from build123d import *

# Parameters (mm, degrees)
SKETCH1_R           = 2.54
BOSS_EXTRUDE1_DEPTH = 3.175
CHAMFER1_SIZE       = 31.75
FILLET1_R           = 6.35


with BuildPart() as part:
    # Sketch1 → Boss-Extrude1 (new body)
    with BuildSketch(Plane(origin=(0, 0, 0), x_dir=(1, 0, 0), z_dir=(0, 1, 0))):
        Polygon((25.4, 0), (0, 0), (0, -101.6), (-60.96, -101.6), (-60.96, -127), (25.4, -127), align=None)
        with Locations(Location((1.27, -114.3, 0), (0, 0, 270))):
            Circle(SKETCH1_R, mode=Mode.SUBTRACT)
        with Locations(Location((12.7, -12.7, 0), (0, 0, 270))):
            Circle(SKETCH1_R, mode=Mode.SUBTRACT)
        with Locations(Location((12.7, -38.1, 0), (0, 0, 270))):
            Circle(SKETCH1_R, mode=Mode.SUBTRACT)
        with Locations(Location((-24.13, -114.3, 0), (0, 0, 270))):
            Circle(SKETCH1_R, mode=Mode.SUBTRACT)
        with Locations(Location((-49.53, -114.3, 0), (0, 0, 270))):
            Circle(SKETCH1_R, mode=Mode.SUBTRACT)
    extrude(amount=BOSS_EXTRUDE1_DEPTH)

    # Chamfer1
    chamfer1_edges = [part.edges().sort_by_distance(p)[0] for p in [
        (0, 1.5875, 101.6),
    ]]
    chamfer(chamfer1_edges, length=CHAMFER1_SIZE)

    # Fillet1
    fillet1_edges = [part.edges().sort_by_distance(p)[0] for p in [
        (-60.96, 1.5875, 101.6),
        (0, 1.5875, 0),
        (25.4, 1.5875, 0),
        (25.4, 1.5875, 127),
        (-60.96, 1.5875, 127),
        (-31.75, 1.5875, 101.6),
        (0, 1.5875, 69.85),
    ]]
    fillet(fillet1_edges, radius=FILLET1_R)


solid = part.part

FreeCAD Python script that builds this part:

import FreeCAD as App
import Part
import Sketcher
Q = App.Units.Quantity


def edges_at(feature, points):
    """Names of the edges that pass closest to the given points."""
    edges = feature.Shape.Edges
    near = lambda p: min(range(len(edges)), key=lambda i: edges[i].distToShape(Part.Vertex(*p))[0])
    return sorted({f"Edge{near(p) + 1}" for p in points})


def add_polygon(sketch, points):
    """Adds a closed chain of lines whose ends are joined by coincident constraints."""
    first, n = sketch.GeometryCount, len(points)
    for a, b in zip(points, points[1:] + points[:1]):
        sketch.addGeometry(Part.LineSegment(App.Vector(*a, 0), App.Vector(*b, 0)), False)
    for i in range(n):
        sketch.addConstraint(Sketcher.Constraint("Coincident", first + i, 2, first + (i + 1) % n, 1))

doc = App.newDocument("Part")
params = doc.addObject("Spreadsheet::Sheet", "Params")
for row, (alias, value) in enumerate([
    ("sketch1_diameter", "0.2 in"),
    ("sketch1_width", "1 in"),
    ("sketch1_height", "4 in"),
    ("sketch1_width2", "2.4 in"),
    ("pad1_length", "0.125 in"),
    ("chamfer_size", "1.25 in"),
    ("fillet_radius", "0.25 in"),
], start=1):
    params.set(f"A{row}", alias)
    params.set(f"B{row}", "=" + value)
    params.setAlias(f"B{row}", alias)

body = doc.addObject("PartDesign::Body", "Body")

sketch1 = doc.addObject("Sketcher::SketchObject", "Sketch")
body.addObject(sketch1)
sketch1.AttachmentSupport = (doc.XZ_Plane, [""])
sketch1.MapMode = "FlatFace"
add_polygon(sketch1, [(25.4, 0), (0, 0), (0, 101.6), (-61, 101.6), (-61, 127), (25.4, 127)])
sketch1.addGeometry(Part.Circle(App.Vector(-49.5, 114.3, 0), App.Vector(0, 0, 1), 2.5), False)
sketch1.addGeometry(Part.Circle(App.Vector(-24.1, 114.3, 0), App.Vector(0, 0, 1), 2.5), False)
sketch1.addGeometry(Part.Circle(App.Vector(1.3, 114.3, 0), App.Vector(0, 0, 1), 2.5), False)
sketch1.addGeometry(Part.Circle(App.Vector(12.7, 38.1, 0), App.Vector(0, 0, 1), 2.5), False)
sketch1.addGeometry(Part.Circle(App.Vector(12.7, 12.7, 0), App.Vector(0, 0, 1), 2.5), False)
sketch1.addConstraint(Sketcher.Constraint("Horizontal", 0))
sketch1.addConstraint(Sketcher.Constraint("Vertical", 1))
sketch1.addConstraint(Sketcher.Constraint("Horizontal", 2))
sketch1.addConstraint(Sketcher.Constraint("Vertical", 3))
sketch1.addConstraint(Sketcher.Constraint("Horizontal", 4))
sketch1.addConstraint(Sketcher.Constraint("Vertical", 5))
sketch1.addConstraint(Sketcher.Constraint("Coincident", 0, 2, -1, 1))
sketch1.addConstraint(Sketcher.Constraint("Equal", 6, 7))
sketch1.addConstraint(Sketcher.Constraint("Equal", 7, 8))
sketch1.addConstraint(Sketcher.Constraint("Equal", 8, 9))
sketch1.addConstraint(Sketcher.Constraint("Equal", 9, 10))
sketch1.addConstraint(Sketcher.Constraint("Horizontal", 6, 3, 7, 3))
sketch1.addConstraint(Sketcher.Constraint("Horizontal", 7, 3, 8, 3))
sketch1.addConstraint(Sketcher.Constraint("Vertical", 9, 3, 10, 3))
sketch1.addConstraint(Sketcher.Constraint("Equal", 0, 3))
sketch1.addConstraint(Sketcher.Constraint("Diameter", 6, Q("0.2 in")))
sketch1.addConstraint(Sketcher.Constraint("DistanceX", 0, 2, 0, 1, Q("1 in")))
sketch1.addConstraint(Sketcher.Constraint("DistanceY", 1, 1, 1, 2, Q("4 in")))
sketch1.addConstraint(Sketcher.Constraint("DistanceX", 2, 2, 2, 1, Q("2.4 in")))
sketch1.addConstraint(Sketcher.Constraint("DistanceX", 6, 3, 7, 3, Q("1 in")))
sketch1.addConstraint(Sketcher.Constraint("DistanceX", 7, 3, 8, 3, Q("1 in")))
sketch1.addConstraint(Sketcher.Constraint("DistanceY", 9, 3, 8, 3, Q("3 in")))
sketch1.addConstraint(Sketcher.Constraint("DistanceY", 10, 3, 9, 3, Q("1 in")))
sketch1.addConstraint(Sketcher.Constraint("DistanceY", -1, 1, 6, 3, Q("4.5 in")))
sketch1.addConstraint(Sketcher.Constraint("DistanceX", -1, 1, 9, 3, Q("0.5 in")))
sketch1.addConstraint(Sketcher.Constraint("DistanceX", 6, 3, -1, 1, Q("1.95 in")))
sketch1.setExpression("Constraints[21]", "Params.sketch1_diameter")
sketch1.setExpression("Constraints[22]", "Params.sketch1_width")
sketch1.setExpression("Constraints[23]", "Params.sketch1_height")
sketch1.setExpression("Constraints[24]", "Params.sketch1_width2")
pad1 = doc.addObject("PartDesign::Pad", "Pad")
body.addObject(pad1)
pad1.Profile = sketch1
pad1.setExpression("Length", "Params.pad1_length")
pad1.Reversed = True
doc.recompute()

chamfer = doc.addObject("PartDesign::Chamfer", "Chamfer")
body.addObject(chamfer)
chamfer.Base = (pad1, edges_at(pad1, [(0, 1.587, 101.6)]))
chamfer.setExpression("Size", "Params.chamfer_size")
doc.recompute()

fillet = doc.addObject("PartDesign::Fillet", "Fillet")
body.addObject(fillet)
fillet.Base = (chamfer, edges_at(chamfer, [
    (-60.96, 1.587, 101.6),
    (0, 1.587, 0),
    (25.4, 1.587, 0),
    (25.4, 1.587, 127),
    (-60.96, 1.587, 127),
    (-31.75, 1.587, 101.6),
    (0, 1.587, 69.85),
]))
fillet.setExpression("Radius", "Params.fillet_radius")

doc.recompute()
